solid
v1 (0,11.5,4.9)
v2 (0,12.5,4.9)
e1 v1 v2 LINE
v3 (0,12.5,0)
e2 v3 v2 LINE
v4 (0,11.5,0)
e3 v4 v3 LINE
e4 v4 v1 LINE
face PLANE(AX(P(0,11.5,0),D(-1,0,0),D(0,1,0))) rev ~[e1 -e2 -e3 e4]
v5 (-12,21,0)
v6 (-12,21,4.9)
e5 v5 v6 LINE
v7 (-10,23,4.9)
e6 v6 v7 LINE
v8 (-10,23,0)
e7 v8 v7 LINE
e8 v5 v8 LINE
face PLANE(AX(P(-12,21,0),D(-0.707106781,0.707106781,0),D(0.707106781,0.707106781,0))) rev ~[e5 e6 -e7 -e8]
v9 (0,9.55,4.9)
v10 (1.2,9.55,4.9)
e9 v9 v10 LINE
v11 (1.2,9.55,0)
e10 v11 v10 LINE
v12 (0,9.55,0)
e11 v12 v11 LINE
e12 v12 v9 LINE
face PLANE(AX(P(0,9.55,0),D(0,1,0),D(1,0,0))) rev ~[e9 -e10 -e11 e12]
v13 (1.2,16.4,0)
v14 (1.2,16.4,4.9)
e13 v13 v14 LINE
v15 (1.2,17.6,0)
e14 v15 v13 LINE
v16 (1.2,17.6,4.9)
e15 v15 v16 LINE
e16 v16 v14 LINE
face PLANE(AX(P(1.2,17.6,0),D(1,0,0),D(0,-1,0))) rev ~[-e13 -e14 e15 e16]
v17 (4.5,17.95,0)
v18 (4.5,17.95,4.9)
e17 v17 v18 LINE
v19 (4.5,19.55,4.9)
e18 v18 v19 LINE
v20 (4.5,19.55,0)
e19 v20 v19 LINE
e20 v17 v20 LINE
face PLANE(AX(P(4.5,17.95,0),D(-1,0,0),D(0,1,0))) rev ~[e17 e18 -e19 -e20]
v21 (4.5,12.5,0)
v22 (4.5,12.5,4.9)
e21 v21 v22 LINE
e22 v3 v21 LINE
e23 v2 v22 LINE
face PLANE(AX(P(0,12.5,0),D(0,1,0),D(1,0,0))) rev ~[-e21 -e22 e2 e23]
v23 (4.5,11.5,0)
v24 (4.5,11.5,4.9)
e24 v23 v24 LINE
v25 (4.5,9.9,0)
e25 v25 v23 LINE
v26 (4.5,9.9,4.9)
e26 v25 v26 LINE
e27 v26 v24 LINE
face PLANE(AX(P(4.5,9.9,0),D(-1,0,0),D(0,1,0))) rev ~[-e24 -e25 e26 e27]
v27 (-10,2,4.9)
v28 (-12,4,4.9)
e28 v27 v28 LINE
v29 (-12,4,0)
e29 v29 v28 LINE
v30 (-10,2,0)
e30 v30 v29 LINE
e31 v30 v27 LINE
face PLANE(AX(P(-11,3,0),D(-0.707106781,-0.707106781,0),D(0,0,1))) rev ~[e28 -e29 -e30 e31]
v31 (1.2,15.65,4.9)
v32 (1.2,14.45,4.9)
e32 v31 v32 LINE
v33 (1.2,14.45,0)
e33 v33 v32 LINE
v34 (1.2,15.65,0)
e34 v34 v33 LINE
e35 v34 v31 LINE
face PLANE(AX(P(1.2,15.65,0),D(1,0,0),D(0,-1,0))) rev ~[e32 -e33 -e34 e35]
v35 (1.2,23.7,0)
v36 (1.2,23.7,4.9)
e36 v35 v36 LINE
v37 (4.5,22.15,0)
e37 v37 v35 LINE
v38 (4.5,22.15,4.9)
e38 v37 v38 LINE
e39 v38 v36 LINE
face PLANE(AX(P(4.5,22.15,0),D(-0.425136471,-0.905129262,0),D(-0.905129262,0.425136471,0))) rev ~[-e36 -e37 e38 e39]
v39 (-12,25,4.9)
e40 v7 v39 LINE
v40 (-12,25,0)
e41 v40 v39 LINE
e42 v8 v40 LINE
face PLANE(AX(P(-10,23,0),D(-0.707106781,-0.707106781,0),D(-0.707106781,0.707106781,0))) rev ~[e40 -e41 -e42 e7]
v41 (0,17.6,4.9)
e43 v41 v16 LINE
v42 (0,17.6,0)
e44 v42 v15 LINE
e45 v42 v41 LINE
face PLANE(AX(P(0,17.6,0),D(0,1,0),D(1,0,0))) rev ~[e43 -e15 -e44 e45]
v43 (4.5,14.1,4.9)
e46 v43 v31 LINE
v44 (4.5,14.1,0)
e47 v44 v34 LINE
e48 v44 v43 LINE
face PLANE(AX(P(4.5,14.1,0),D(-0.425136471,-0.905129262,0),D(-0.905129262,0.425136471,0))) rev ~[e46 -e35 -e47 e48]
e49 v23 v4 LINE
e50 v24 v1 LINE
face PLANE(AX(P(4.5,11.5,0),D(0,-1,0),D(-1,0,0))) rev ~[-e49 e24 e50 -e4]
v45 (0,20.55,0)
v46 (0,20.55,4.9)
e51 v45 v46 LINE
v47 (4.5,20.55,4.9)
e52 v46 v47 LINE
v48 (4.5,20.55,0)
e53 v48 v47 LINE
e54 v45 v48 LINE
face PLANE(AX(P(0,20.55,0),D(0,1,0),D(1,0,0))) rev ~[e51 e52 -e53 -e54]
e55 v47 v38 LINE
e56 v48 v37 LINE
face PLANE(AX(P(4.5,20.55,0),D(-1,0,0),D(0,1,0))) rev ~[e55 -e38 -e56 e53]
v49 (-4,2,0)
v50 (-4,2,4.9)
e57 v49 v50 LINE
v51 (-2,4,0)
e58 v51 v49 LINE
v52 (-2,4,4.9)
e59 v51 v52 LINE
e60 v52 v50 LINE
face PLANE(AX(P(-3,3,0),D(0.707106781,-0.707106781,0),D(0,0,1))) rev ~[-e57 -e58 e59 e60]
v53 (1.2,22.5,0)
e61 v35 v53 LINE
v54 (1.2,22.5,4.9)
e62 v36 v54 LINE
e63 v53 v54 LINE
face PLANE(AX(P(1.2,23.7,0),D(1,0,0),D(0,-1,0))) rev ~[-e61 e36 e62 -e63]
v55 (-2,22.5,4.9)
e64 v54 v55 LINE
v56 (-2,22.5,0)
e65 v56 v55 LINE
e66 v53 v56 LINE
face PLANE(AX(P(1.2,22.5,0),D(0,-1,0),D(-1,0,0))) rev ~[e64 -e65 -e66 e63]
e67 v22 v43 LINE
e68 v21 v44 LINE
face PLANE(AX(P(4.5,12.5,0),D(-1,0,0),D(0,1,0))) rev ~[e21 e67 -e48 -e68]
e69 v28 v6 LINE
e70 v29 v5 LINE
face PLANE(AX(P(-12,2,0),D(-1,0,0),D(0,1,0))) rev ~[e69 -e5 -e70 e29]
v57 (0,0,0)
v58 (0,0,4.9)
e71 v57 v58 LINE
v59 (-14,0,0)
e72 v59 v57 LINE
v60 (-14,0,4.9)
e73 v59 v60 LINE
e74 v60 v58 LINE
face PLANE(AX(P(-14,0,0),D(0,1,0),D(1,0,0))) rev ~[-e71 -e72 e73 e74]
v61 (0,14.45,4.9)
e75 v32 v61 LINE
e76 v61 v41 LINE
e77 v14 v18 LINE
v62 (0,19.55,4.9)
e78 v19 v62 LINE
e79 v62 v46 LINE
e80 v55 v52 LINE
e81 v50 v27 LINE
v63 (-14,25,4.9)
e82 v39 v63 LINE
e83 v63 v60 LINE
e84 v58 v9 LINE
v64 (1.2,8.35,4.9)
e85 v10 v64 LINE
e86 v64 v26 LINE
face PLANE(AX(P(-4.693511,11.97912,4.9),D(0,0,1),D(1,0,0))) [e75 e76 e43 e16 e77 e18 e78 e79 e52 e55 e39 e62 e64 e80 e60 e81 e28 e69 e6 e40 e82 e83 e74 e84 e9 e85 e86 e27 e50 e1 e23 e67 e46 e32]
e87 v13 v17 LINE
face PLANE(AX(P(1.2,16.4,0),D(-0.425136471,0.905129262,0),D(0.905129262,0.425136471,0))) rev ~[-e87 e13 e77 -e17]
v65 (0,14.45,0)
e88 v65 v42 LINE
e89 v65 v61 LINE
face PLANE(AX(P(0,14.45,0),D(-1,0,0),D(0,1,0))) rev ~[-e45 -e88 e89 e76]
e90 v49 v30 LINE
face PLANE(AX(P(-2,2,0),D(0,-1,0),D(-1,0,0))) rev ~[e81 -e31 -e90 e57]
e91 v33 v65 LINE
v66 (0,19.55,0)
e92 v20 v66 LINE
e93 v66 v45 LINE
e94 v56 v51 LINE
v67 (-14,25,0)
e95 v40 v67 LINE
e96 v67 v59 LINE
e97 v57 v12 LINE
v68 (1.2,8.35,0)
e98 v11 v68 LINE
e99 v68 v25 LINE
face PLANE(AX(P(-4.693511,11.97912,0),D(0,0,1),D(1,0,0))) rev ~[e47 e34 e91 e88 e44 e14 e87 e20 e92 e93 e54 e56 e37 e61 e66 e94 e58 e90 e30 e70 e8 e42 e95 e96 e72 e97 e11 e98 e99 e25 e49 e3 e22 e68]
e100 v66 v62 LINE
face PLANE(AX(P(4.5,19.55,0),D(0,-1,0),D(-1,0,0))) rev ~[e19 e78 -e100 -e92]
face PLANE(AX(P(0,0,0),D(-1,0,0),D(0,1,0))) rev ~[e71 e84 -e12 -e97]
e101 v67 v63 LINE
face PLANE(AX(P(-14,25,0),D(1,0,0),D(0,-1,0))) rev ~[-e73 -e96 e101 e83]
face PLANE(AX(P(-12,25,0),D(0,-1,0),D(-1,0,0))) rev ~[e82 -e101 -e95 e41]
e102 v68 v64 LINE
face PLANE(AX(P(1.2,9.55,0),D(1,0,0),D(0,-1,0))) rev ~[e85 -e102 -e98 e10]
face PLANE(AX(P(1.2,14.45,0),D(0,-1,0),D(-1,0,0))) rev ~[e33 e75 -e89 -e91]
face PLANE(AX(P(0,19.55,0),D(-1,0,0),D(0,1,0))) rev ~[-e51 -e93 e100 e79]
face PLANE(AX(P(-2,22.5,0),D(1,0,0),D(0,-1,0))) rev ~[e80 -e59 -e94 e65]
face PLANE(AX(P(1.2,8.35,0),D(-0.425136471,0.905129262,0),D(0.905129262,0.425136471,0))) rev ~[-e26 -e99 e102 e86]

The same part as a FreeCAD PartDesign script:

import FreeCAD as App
import Part
import Sketcher
from FreeCAD import Vector
Q = App.Units.Quantity


def edges_at(feature, points):
    """Names of the edges that pass closest to the given points."""
    edges = feature.Shape.Edges
    near = lambda p: min(range(len(edges)), key=lambda i: edges[i].distToShape(Part.Vertex(*p))[0])
    return sorted({f"Edge{near(p) + 1}" for p in points})


def add_polygon(sketch, points):
    """Adds a closed chain of lines whose ends are joined by coincident constraints."""
    first, n = sketch.GeometryCount, len(points)
    for a, b in zip(points, points[1:] + points[:1]):
        sketch.addGeometry(Part.LineSegment(App.Vector(*a, 0), App.Vector(*b, 0)), False)
    for i in range(n):
        sketch.addConstraint(Sketcher.Constraint("Coincident", first + i, 2, first + (i + 1) % n, 1))

doc = App.newDocument("Part")
body = doc.addObject("PartDesign::Body", "Body")

# Sketch on XY plane
sketch1 = body.newObject("Sketcher::SketchObject", "Sketch")
sketch1.AttachmentSupport = (doc.getObject("XY_Plane"), [""])
sketch1.MapMode = "FlatFace"
add_polygon(sketch1, [(0, 0), (0, 9.6), (1.2, 9.6), (1.2, 8.3), (4.5, 9.9), (4.5, 11.5), (0, 11.5), (0, 12.5), (4.5, 12.5), (4.5, 14.1), (1.2, 15.7), (1.2, 14.4), (0, 14.4), (0, 17.6), (1.2, 17.6), (1.2, 16.4), (4.5, 17.9), (4.5, 19.6), (0, 19.6), (0, 20.6), (4.5, 20.6), (4.5, 22.1), (1.2, 23.7), (1.2, 22.5), (-2, 22.5), (-2, 2), (-12, 2), (-12, 21), (-10, 23), (-12, 25), (-14, 25), (-14, 0)])  # lines 0-31
sketch1.addConstraint([
    Sketcher.Constraint("Vertical", 0),
    Sketcher.Constraint("Horizontal", 1),
    Sketcher.Constraint("Vertical", 2),
    Sketcher.Constraint("Vertical", 4),
    Sketcher.Constraint("Horizontal", 5),
    Sketcher.Constraint("Vertical", 6),
    Sketcher.Constraint("Horizontal", 7),
    Sketcher.Constraint("Vertical", 8),
    Sketcher.Constraint("Vertical", 10),
    Sketcher.Constraint("Horizontal", 11),
    Sketcher.Constraint("Vertical", 12),
    Sketcher.Constraint("Horizontal", 13),
    Sketcher.Constraint("Vertical", 14),
    Sketcher.Constraint("Vertical", 16),
    Sketcher.Constraint("Horizontal", 17),
    Sketcher.Constraint("Vertical", 18),
    Sketcher.Constraint("Horizontal", 19),
    Sketcher.Constraint("Vertical", 20),
    Sketcher.Constraint("Vertical", 22),
    Sketcher.Constraint("Horizontal", 23),
    Sketcher.Constraint("Vertical", 24),
    Sketcher.Constraint("Horizontal", 25),
    Sketcher.Constraint("Vertical", 26),
    Sketcher.Constraint("Horizontal", 29),
    Sketcher.Constraint("Vertical", 30),
    Sketcher.Constraint("Horizontal", 31),
    Sketcher.Constraint("Coincident", 31, 2, -1, 1),
    Sketcher.Constraint("PointOnObject", 5, 2, -2),
    Sketcher.Constraint("PointOnObject", 11, 2, -2),
    Sketcher.Constraint("PointOnObject", 17, 2, -2),
    Sketcher.Constraint("Parallel", 3, 15),
    Sketcher.Constraint("Parallel", 9, 21),
    Sketcher.Constraint("Perpendicular", 27, 28),
    Sketcher.Constraint("Vertical", 4, 2, 7, 2),
    Sketcher.Constraint("Vertical", 2, 2, 9, 2),
    Sketcher.Constraint("Vertical", 10, 2, 13, 2),
    Sketcher.Constraint("Vertical", 8, 2, 15, 2),
    Sketcher.Constraint("Vertical", 16, 2, 19, 2),
    Sketcher.Constraint("Vertical", 14, 2, 21, 2),
    Sketcher.Constraint("Vertical", 26, 2, 28, 2),
    Sketcher.Constraint("Equal", 13, 2),
    Sketcher.Constraint("Equal", 4, 8),
    Sketcher.Constraint("Equal", 2, 10),
    Sketcher.Constraint("Equal", 10, 14),
    Sketcher.Constraint("Equal", 8, 16),
    Sketcher.Constraint("Equal", 6, 18),
    Sketcher.Constraint("Equal", 16, 20),
    Sketcher.Constraint("Equal", 14, 22),
    Sketcher.Constraint("Equal", 3, 9),
    Sketcher.Constraint("Equal", 27, 28),
    Sketcher.Constraint("DistanceX", 25, 2, 25, 1, Q("10 mm")),
    Sketcher.Constraint("DistanceX", 29, 2, 29, 1, Q("2 mm")),
    Sketcher.Constraint("DistanceX", 31, 1, 31, 2, Q("14 mm")),
    Sketcher.Constraint("DistanceY", 6, 1, 6, 2, Q("1 mm")),
    Sketcher.Constraint("DistanceY", 26, 1, 26, 2, Q("19 mm")),
    Sketcher.Constraint("DistanceY", 30, 2, 30, 1, Q("25 mm")),
    Sketcher.Constraint("DistanceX", 1, 1, 1, 2, Q("1.2 mm")),
    Sketcher.Constraint("DistanceX", 5, 2, 5, 1, Q("4.5 mm")),
    Sketcher.Constraint("DistanceY", 4, 1, 4, 2, Q("1.6 mm")),
    Sketcher.Constraint("DistanceY", 24, 2, 24, 1, Q("20.5 mm")),
    Sketcher.Constraint("DistanceY", -1, 1, 24, 2, Q("2 mm")),
    Sketcher.Constraint("DistanceY", 0, 1, 0, 2, Q("9.55 mm")),
    Sketcher.Constraint("DistanceY", 12, 1, 12, 2, Q("3.15 mm")),
])
pad1 = body.newObject("PartDesign::Pad", "Pad")
pad1.Profile = sketch1
pad1.Length = 4.9
doc.recompute()

chamfer = body.newObject("PartDesign::Chamfer", "Chamfer")
chamfer.Base = (pad1, edges_at(pad1, [(-2, 2, 2.45)]))
chamfer.Size = 2
doc.recompute()

chamfer2 = body.newObject("PartDesign::Chamfer", "Chamfer001")
chamfer2.Base = (chamfer, edges_at(chamfer, [(-12, 2, 2.45)]))
chamfer2.Size = 2

doc.recompute()
